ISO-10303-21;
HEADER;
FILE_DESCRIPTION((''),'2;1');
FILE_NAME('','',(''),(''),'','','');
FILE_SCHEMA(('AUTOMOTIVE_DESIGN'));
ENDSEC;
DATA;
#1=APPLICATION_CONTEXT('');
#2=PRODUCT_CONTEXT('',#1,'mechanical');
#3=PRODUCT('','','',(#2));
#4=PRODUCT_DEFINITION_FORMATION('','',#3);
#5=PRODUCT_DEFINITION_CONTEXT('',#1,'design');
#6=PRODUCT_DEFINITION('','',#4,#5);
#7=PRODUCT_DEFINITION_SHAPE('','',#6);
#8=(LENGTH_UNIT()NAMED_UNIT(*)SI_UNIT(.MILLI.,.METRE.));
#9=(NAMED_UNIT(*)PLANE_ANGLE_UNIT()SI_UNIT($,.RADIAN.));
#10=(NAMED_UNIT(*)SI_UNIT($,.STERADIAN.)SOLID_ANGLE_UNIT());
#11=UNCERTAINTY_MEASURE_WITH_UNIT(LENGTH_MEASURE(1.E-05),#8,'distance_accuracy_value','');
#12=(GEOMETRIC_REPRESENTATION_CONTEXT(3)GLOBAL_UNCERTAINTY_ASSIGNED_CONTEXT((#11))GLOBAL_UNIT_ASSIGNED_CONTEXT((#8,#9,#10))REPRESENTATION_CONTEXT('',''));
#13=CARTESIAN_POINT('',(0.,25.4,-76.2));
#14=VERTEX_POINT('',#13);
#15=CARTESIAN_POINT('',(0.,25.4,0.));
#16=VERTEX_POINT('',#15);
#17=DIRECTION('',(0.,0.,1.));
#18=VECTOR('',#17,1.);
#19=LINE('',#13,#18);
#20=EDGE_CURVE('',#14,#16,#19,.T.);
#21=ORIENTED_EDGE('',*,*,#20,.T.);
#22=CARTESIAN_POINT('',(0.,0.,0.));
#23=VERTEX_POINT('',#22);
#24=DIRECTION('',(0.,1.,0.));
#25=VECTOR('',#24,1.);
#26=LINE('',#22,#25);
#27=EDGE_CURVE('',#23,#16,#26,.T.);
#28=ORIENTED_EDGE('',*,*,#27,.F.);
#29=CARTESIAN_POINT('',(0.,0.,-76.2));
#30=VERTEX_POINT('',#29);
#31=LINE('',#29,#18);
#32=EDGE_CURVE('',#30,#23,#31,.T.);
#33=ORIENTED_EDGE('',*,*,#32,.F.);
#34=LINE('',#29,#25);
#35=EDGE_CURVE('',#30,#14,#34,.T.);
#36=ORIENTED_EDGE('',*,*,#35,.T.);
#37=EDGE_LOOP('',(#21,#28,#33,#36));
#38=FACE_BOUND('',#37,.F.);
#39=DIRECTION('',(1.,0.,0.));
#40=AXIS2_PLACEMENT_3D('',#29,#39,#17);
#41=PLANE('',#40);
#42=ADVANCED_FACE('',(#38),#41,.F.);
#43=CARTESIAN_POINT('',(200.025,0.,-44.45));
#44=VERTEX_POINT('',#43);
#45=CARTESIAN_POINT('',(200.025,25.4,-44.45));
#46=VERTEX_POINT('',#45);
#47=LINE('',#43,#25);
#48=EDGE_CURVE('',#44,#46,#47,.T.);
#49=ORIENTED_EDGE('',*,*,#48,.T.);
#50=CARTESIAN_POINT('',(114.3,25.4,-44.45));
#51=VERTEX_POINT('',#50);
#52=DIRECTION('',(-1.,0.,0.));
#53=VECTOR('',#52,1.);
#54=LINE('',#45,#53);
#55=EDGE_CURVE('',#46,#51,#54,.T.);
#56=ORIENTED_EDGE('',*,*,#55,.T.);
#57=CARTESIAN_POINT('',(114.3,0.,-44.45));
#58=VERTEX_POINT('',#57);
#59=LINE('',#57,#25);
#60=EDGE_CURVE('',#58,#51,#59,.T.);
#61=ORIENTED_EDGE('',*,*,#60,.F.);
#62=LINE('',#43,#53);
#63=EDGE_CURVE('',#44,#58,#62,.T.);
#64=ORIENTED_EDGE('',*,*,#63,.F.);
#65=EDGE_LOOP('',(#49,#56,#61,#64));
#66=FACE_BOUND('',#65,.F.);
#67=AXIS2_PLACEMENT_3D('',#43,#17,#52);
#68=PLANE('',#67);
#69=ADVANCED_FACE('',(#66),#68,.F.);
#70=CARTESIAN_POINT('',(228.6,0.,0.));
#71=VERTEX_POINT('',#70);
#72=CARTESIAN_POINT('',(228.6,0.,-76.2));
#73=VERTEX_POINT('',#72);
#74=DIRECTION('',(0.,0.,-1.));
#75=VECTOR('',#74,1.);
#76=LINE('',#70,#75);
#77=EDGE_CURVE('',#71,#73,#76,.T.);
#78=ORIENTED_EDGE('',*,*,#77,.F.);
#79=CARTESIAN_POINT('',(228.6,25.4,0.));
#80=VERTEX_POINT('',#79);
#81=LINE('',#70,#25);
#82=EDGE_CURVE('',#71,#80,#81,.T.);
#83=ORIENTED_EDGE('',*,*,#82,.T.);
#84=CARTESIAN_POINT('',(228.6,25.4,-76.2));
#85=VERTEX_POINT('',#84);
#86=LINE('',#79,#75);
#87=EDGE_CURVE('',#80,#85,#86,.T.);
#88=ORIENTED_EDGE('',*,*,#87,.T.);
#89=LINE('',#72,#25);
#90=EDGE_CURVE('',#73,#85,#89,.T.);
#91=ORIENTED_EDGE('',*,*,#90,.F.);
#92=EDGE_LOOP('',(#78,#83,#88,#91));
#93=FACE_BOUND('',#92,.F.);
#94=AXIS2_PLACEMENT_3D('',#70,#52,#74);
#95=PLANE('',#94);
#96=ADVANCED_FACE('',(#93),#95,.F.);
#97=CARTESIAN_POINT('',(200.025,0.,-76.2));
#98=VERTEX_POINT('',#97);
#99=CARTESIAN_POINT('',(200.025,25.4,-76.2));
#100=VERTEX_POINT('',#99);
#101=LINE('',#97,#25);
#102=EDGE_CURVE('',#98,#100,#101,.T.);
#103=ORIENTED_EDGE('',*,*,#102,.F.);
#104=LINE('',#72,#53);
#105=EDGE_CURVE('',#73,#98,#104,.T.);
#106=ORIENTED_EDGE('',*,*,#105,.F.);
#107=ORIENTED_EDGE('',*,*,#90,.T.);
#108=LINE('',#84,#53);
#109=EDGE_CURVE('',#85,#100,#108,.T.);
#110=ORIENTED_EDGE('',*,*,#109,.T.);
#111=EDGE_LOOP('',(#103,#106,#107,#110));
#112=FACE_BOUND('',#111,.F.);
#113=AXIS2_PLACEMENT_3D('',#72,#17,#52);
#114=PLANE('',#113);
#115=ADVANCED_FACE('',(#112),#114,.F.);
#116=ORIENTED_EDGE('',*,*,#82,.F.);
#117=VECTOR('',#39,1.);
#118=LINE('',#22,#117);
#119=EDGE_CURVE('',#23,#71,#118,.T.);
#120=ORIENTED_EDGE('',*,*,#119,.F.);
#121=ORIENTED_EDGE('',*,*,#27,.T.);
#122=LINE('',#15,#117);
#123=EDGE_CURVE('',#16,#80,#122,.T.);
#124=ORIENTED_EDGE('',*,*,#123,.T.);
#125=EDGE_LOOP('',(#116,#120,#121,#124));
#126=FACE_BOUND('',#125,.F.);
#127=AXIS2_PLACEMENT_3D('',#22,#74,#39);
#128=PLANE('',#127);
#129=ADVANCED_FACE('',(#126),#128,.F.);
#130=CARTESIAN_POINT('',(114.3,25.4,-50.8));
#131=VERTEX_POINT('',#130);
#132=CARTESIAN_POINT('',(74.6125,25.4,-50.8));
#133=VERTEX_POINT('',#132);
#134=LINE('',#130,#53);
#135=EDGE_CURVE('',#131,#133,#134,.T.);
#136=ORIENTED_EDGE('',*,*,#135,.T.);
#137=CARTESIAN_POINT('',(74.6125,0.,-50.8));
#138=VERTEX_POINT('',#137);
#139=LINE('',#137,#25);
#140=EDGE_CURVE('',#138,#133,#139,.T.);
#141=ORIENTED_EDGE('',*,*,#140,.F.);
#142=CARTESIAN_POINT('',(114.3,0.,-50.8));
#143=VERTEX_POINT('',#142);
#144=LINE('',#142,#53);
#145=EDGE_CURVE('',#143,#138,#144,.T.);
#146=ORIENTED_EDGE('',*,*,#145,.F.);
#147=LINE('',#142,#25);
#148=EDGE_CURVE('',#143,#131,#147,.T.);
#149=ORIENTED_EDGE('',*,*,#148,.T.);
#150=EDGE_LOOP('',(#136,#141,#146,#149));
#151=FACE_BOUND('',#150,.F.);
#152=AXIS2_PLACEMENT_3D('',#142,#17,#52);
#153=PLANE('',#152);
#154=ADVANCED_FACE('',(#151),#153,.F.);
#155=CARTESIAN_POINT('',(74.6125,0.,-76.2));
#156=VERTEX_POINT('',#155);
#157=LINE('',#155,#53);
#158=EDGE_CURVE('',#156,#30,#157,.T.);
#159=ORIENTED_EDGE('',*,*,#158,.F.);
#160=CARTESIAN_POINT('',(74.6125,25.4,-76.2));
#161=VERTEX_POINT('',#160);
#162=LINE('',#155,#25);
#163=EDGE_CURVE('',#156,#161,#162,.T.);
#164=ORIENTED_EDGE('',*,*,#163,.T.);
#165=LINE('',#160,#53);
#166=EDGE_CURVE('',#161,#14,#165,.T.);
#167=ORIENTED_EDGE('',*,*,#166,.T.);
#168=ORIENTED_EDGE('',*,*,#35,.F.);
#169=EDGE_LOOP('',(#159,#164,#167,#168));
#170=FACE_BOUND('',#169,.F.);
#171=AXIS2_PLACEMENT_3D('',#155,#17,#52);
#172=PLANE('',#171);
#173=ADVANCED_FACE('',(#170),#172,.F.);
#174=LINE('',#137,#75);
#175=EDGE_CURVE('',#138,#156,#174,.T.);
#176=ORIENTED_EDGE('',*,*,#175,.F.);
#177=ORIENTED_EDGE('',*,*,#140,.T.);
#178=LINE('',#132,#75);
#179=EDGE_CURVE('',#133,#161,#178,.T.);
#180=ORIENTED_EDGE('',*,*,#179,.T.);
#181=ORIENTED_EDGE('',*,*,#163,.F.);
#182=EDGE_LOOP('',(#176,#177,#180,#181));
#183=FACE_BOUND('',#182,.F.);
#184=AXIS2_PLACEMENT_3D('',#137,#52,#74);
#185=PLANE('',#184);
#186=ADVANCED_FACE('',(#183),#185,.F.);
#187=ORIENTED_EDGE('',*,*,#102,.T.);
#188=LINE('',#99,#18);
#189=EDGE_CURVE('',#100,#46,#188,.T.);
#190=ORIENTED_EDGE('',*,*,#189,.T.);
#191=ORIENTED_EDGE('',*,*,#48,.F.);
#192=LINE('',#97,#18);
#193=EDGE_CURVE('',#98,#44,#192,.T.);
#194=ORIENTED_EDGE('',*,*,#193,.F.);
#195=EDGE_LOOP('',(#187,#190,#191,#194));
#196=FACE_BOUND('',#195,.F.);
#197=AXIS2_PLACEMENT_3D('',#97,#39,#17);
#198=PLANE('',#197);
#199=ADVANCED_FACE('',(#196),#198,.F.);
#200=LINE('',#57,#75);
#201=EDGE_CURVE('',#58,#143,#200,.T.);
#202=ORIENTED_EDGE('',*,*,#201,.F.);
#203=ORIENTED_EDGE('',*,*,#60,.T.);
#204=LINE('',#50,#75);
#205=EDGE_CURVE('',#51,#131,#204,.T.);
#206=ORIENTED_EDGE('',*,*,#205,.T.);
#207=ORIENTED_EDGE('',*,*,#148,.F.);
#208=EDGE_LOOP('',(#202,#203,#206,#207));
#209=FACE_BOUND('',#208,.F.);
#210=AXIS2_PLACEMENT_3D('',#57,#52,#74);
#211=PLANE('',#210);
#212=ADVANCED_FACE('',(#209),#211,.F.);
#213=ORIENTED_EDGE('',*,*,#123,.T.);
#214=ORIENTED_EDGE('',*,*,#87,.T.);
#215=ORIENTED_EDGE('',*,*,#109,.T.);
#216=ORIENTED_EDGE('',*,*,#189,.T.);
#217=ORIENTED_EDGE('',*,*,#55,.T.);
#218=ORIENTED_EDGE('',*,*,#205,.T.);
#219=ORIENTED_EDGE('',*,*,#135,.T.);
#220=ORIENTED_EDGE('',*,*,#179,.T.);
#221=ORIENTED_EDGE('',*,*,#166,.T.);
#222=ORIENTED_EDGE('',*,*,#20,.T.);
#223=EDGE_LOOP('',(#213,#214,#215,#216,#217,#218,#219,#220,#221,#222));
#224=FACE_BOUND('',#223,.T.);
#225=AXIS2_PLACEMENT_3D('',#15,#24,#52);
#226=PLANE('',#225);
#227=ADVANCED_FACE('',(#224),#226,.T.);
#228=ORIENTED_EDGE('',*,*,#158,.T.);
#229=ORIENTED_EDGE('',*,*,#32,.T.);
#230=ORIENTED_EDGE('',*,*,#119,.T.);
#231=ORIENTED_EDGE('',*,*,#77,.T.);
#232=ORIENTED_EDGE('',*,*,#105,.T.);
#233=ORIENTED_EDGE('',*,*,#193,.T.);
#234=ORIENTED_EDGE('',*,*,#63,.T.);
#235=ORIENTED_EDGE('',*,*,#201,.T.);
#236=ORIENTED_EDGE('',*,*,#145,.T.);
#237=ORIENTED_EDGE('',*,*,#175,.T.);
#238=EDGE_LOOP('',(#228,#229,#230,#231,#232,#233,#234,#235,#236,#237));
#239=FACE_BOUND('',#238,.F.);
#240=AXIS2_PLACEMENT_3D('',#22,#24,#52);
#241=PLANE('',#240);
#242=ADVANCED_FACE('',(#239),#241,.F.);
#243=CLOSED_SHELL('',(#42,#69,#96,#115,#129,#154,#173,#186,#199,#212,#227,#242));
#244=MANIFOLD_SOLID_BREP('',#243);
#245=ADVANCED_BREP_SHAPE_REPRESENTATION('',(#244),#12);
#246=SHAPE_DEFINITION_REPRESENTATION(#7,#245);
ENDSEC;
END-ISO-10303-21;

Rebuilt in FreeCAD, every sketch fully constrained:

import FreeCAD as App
import Part
import Sketcher

V = App.Vector
Q = App.Units.Quantity


def add_polygon(sketch, points):
    """Adds a closed chain of lines whose ends are joined by coincident constraints."""
    first, n = sketch.GeometryCount, len(points)
    for a, b in zip(points, points[1:] + points[:1]):
        sketch.addGeometry(Part.LineSegment(App.Vector(*a, 0), App.Vector(*b, 0)), False)
    for i in range(n):
        sketch.addConstraint(Sketcher.Constraint("Coincident", first + i, 2, first + (i + 1) % n, 1))

doc = App.newDocument("Part")
body = doc.addObject("PartDesign::Body", "Body")

# Sketch on XZ plane
sketch1 = doc.addObject("Sketcher::SketchObject", "Sketch")
body.addObject(sketch1)
sketch1.AttachmentSupport = (doc.XZ_Plane, [""])
sketch1.MapMode = "FlatFace"
add_polygon(sketch1, [(0, -76), (0, 0), (229, 0), (229, -76), (200, -76), (200, -44), (114, -44), (114, -51), (75, -51), (75, -76)])  # lines 0-9
sketch1.addConstraint([
    Sketcher.Constraint("Vertical", 0),
    Sketcher.Constraint("Horizontal", 1),
    Sketcher.Constraint("Vertical", 2),
    Sketcher.Constraint("Horizontal", 3),
    Sketcher.Constraint("Vertical", 4),
    Sketcher.Constraint("Horizontal", 5),
    Sketcher.Constraint("Vertical", 6),
    Sketcher.Constraint("Horizontal", 7),
    Sketcher.Constraint("Vertical", 8),
    Sketcher.Constraint("Horizontal", 9),
    Sketcher.Constraint("Coincident", 0, 2, -1, 1),
    Sketcher.Constraint("Horizontal", 3, 2, 8, 2),
    Sketcher.Constraint("DistanceX", 1, 1, 1, 2, Q("9 in")),
    Sketcher.Constraint("DistanceY", 0, 1, 0, 2, Q("3 in")),
    Sketcher.Constraint("DistanceY", 4, 1, 4, 2, Q("1.25 in")),
    Sketcher.Constraint("DistanceY", 6, 2, 6, 1, Q("0.25 in")),
    Sketcher.Constraint("DistanceX", 3, 2, 3, 1, Q("1.125 in")),
    Sketcher.Constraint("DistanceX", 5, 2, 5, 1, Q("3.375 in")),
    Sketcher.Constraint("DistanceX", 7, 2, 7, 1, Q("1.5625 in")),
])
pad1 = doc.addObject("PartDesign::Pad", "Pad")
body.addObject(pad1)
pad1.Profile = sketch1
pad1.Length = Q("1 in")
pad1.Reversed = True

doc.recompute()
